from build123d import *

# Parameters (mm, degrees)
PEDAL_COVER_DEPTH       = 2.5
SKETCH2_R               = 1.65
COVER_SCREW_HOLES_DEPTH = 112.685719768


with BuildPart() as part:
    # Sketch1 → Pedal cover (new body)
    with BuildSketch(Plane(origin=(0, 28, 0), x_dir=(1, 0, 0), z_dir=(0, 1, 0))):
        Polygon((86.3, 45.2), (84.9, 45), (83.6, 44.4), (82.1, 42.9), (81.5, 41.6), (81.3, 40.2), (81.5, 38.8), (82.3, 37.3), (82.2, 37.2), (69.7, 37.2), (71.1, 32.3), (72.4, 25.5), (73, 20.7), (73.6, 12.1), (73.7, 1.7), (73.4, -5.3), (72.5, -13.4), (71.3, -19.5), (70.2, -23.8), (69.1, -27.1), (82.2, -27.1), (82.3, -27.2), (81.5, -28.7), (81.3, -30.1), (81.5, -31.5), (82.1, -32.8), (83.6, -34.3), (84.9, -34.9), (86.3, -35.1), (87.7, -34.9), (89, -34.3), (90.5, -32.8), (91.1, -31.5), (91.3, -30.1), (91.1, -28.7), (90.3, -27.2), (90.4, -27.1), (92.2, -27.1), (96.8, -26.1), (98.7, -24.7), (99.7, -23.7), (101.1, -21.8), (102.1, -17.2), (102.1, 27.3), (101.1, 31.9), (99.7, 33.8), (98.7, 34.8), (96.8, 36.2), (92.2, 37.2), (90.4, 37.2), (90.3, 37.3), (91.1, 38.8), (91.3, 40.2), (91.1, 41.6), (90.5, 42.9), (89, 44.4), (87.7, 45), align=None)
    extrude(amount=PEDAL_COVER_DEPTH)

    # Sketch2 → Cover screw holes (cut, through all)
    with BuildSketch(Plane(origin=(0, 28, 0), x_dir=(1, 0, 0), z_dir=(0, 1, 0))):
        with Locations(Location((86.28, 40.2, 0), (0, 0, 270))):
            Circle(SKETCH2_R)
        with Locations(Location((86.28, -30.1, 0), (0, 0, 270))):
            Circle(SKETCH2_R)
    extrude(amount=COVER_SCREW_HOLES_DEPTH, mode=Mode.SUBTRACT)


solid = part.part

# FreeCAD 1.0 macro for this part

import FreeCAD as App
import Part
import Sketcher

V = App.Vector
Q = App.Units.Quantity


def add_polygon(sketch, points):
    """Adds a closed chain of lines whose ends are joined by coincident constraints."""
    first, n = sketch.GeometryCount, len(points)
    for a, b in zip(points, points[1:] + points[:1]):
        sketch.addGeometry(Part.LineSegment(App.Vector(*a, 0), App.Vector(*b, 0)), False)
    for i in range(n):
        sketch.addConstraint(Sketcher.Constraint("Coincident", first + i, 2, first + (i + 1) % n, 1))

doc = App.newDocument("Part")
body = doc.addObject("PartDesign::Body", "Body")

# Sketch on XZ plane
sketch1 = doc.addObject("Sketcher::SketchObject", "Sketch")
body.addObject(sketch1)
sketch1.AttachmentSupport = (doc.XZ_Plane, [""])
sketch1.MapMode = "FlatFace"
sketch1.AttachmentOffset = App.Placement(V(0, 0, -28), App.Rotation())
add_polygon(sketch1, [(86.3, -45.2), (84.9, -45), (83.6, -44.4), (82.1, -42.9), (81.5, -41.6), (81.3, -40.2), (81.5, -38.8), (82.3, -37.3), (82.2, -37.2), (69.7, -37.2), (71.1, -32.3), (72.4, -25.5), (73, -20.7), (73.6, -12.1), (73.7, -1.7), (73.4, 5.3), (72.5, 13.4), (71.3, 19.5), (70.2, 23.8), (69.1, 27.1), (82.2, 27.1), (82.3, 27.2), (81.5, 28.7), (81.3, 30.1), (81.5, 31.5), (82.1, 32.8), (83.6, 34.3), (84.9, 34.9), (86.3, 35.1), (87.7, 34.9), (89, 34.3), (90.5, 32.8), (91.1, 31.5), (91.3, 30.1), (91.1, 28.7), (90.3, 27.2), (90.4, 27.1), (92.2, 27.1), (96.8, 26.1), (98.7, 24.7), (99.7, 23.7), (101.1, 21.8), (102.1, 17.2), (102.1, -27.3), (101.1, -31.9), (99.7, -33.8), (98.7, -34.8), (96.8, -36.2), (92.2, -37.2), (90.4, -37.2), (90.3, -37.3), (91.1, -38.8), (91.3, -40.2), (91.1, -41.6), (90.5, -42.9), (89, -44.4), (87.7, -45)])  # lines 0-56
sketch1.addConstraint(Sketcher.Constraint("Horizontal", 8))
sketch1.addConstraint(Sketcher.Constraint("Horizontal", 19))
sketch1.addConstraint(Sketcher.Constraint("Horizontal", 36))
sketch1.addConstraint(Sketcher.Constraint("Vertical", 42))
sketch1.addConstraint(Sketcher.Constraint("Horizontal", 48))
sketch1.addConstraint(Sketcher.Constraint("Perpendicular", 0, 5))
sketch1.addConstraint(Sketcher.Constraint("Parallel", 2, 7))
sketch1.addConstraint(Sketcher.Constraint("Perpendicular", 7, 20))
sketch1.addConstraint(Sketcher.Constraint("Parallel", 4, 22))
sketch1.addConstraint(Sketcher.Constraint("Parallel", 5, 23))
sketch1.addConstraint(Sketcher.Constraint("Perpendicular", 1, 24))
sketch1.addConstraint(Sketcher.Constraint("Parallel", 20, 25))
sketch1.addConstraint(Sketcher.Constraint("Perpendicular", 3, 26))
sketch1.addConstraint(Sketcher.Constraint("Perpendicular", 22, 27))
sketch1.addConstraint(Sketcher.Constraint("Perpendicular", 23, 28))
sketch1.addConstraint(Sketcher.Constraint("Perpendicular", 24, 29))
sketch1.addConstraint(Sketcher.Constraint("Perpendicular", 25, 30))
sketch1.addConstraint(Sketcher.Constraint("Perpendicular", 26, 31))
sketch1.addConstraint(Sketcher.Constraint("Perpendicular", 27, 32))
sketch1.addConstraint(Sketcher.Constraint("Perpendicular", 28, 33))
sketch1.addConstraint(Sketcher.Constraint("Parallel", 6, 34))
sketch1.addConstraint(Sketcher.Constraint("Parallel", 30, 35))
sketch1.addConstraint(Sketcher.Constraint("Parallel", 35, 39))
sketch1.addConstraint(Sketcher.Constraint("Perpendicular", 37, 43))
sketch1.addConstraint(Sketcher.Constraint("Perpendicular", 38, 44))
sketch1.addConstraint(Sketcher.Constraint("Perpendicular", 39, 45))
sketch1.addConstraint(Sketcher.Constraint("Perpendicular", 40, 46))
sketch1.addConstraint(Sketcher.Constraint("Perpendicular", 41, 47))
sketch1.addConstraint(Sketcher.Constraint("Parallel", 45, 49))
sketch1.addConstraint(Sketcher.Constraint("Parallel", 21, 50))
sketch1.addConstraint(Sketcher.Constraint("Parallel", 32, 51))
sketch1.addConstraint(Sketcher.Constraint("Parallel", 33, 52))
sketch1.addConstraint(Sketcher.Constraint("Perpendicular", 29, 53))
sketch1.addConstraint(Sketcher.Constraint("Parallel", 49, 54))
sketch1.addConstraint(Sketcher.Constraint("Perpendicular", 31, 55))
sketch1.addConstraint(Sketcher.Constraint("Perpendicular", 51, 56))
sketch1.addConstraint(Sketcher.Constraint("Horizontal", 26, 2, 28, 2))
sketch1.addConstraint(Sketcher.Constraint("Horizontal", 25, 2, 29, 2))
sketch1.addConstraint(Sketcher.Constraint("Horizontal", 24, 2, 30, 2))
sketch1.addConstraint(Sketcher.Constraint("Horizontal", 23, 2, 31, 2))
sketch1.addConstraint(Sketcher.Constraint("Horizontal", 22, 2, 32, 2))
sketch1.addConstraint(Sketcher.Constraint("Horizontal", 21, 2, 33, 2))
sketch1.addConstraint(Sketcher.Constraint("Horizontal", 20, 2, 34, 2))
sketch1.addConstraint(Sketcher.Constraint("Horizontal", 19, 2, 35, 2))
sketch1.addConstraint(Sketcher.Constraint("Horizontal", 8, 2, 47, 2))
sketch1.addConstraint(Sketcher.Constraint("Horizontal", 6, 2, 49, 2))
sketch1.addConstraint(Sketcher.Constraint("Horizontal", 5, 2, 50, 2))
sketch1.addConstraint(Sketcher.Constraint("Horizontal", 4, 2, 51, 2))
sketch1.addConstraint(Sketcher.Constraint("Horizontal", 3, 2, 52, 2))
sketch1.addConstraint(Sketcher.Constraint("Horizontal", 2, 2, 53, 2))
sketch1.addConstraint(Sketcher.Constraint("Horizontal", 1, 2, 54, 2))
sketch1.addConstraint(Sketcher.Constraint("Horizontal", 0, 2, 55, 2))
sketch1.addConstraint(Sketcher.Constraint("Vertical", 3, 2, 5, 2))
sketch1.addConstraint(Sketcher.Constraint("Vertical", 7, 2, 19, 2))
sketch1.addConstraint(Sketcher.Constraint("Vertical", 6, 2, 20, 2))
sketch1.addConstraint(Sketcher.Constraint("Vertical", 5, 2, 21, 2))
sketch1.addConstraint(Sketcher.Constraint("Vertical", 4, 2, 22, 2))
sketch1.addConstraint(Sketcher.Constraint("Vertical", 21, 2, 23, 2))
sketch1.addConstraint(Sketcher.Constraint("Vertical", 2, 2, 24, 2))
sketch1.addConstraint(Sketcher.Constraint("Vertical", 1, 2, 25, 2))
sketch1.addConstraint(Sketcher.Constraint("Vertical", 0, 2, 26, 2))
sketch1.addConstraint(Sketcher.Constraint("Vertical", 31, 2, 33, 2))
sketch1.addConstraint(Sketcher.Constraint("Vertical", 40, 2, 43, 2))
sketch1.addConstraint(Sketcher.Constraint("Vertical", 39, 2, 44, 2))
sketch1.addConstraint(Sketcher.Constraint("Vertical", 38, 2, 45, 2))
sketch1.addConstraint(Sketcher.Constraint("Vertical", 37, 2, 46, 2))
sketch1.addConstraint(Sketcher.Constraint("Vertical", 36, 2, 47, 2))
sketch1.addConstraint(Sketcher.Constraint("Vertical", 35, 2, 48, 2))
sketch1.addConstraint(Sketcher.Constraint("Vertical", 34, 2, 49, 2))
sketch1.addConstraint(Sketcher.Constraint("Vertical", 33, 2, 50, 2))
sketch1.addConstraint(Sketcher.Constraint("Vertical", 30, 2, 53, 2))
sketch1.addConstraint(Sketcher.Constraint("Equal", 1, 3))
sketch1.addConstraint(Sketcher.Constraint("Equal", 0, 4))
sketch1.addConstraint(Sketcher.Constraint("Equal", 33, 39))
sketch1.addConstraint(Sketcher.Constraint("Equal", 38, 40))
sketch1.addConstraint(Sketcher.Constraint("Equal", 37, 41))
sketch1.addConstraint(Sketcher.Constraint("Equal", 41, 43))
sketch1.addConstraint(Sketcher.Constraint("Equal", 40, 44))
sketch1.addConstraint(Sketcher.Constraint("DistanceX", 8, 2, 8, 1, Q("12.5 mm")))
sketch1.addConstraint(Sketcher.Constraint("DistanceX", 19, 1, 19, 2, Q("13.1 mm")))
sketch1.addConstraint(Sketcher.Constraint("DistanceX", 36, 1, 36, 2, Q("1.8 mm")))
sketch1.addConstraint(Sketcher.Constraint("DistanceY", 42, 2, 42, 1, Q("44.5 mm")))
sketch1.addConstraint(Sketcher.Constraint("DistanceY", 0, 2, -1, 1, Q("45 mm")))
sketch1.addConstraint(Sketcher.Constraint("DistanceX", -1, 1, 11, 2, Q("73 mm")))
sketch1.addConstraint(Sketcher.Constraint("DistanceX", -1, 1, 29, 2, Q("89 mm")))
sketch1.addConstraint(Sketcher.Constraint("DistanceX", 4, 2, 6, 2, Q("1 mm")))
sketch1.addConstraint(Sketcher.Constraint("DistanceY", 4, 2, 7, 2, Q("3 mm")))
sketch1.addConstraint(Sketcher.Constraint("DistanceY", 6, 2, 9, 2, Q("5 mm")))
sketch1.addConstraint(Sketcher.Constraint("DistanceY", 11, 2, 13, 2, Q("19 mm")))
sketch1.addConstraint(Sketcher.Constraint("DistanceX", 8, 2, 13, 2, Q("4 mm")))
sketch1.addConstraint(Sketcher.Constraint("DistanceY", 13, 2, 14, 2, Q("7 mm")))
sketch1.addConstraint(Sketcher.Constraint("DistanceX", 10, 2, 14, 2, Q("1 mm")))
sketch1.addConstraint(Sketcher.Constraint("DistanceX", 17, 2, 19, 2, Q("12 mm")))
sketch1.addConstraint(Sketcher.Constraint("DistanceX", 16, 2, 20, 2, Q("11 mm")))
sketch1.addConstraint(Sketcher.Constraint("DistanceX", 22, 2, 27, 2, Q("5 mm")))
sketch1.addConstraint(Sketcher.Constraint("DistanceY", 37, 2, 36, 2, Q("1 mm")))
sketch1.addConstraint(Sketcher.Constraint("DistanceY", 38, 2, 33, 2, Q("4 mm")))
sketch1.addConstraint(Sketcher.Constraint("DistanceX", 38, 2, 39, 2, Q("1 mm")))
sketch1.addConstraint(Sketcher.Constraint("DistanceY", 6, 2, 42, 2, Q("10 mm")))
sketch1.addConstraint(Sketcher.Constraint("DistanceX", 7, 2, 47, 2, Q("10 mm")))
sketch1.addConstraint(Sketcher.Constraint("Distance", 6, Q("1.7 mm")))
sketch1.addConstraint(Sketcher.Constraint("DistanceX", -1, 1, 0, 2, Q("84.9 mm")))
sketch1.addConstraint(Sketcher.Constraint("DistanceY", 1, 2, -1, 1, Q("44.4 mm")))
sketch1.addConstraint(Sketcher.Constraint("DistanceX", -1, 1, 9, 2, Q("71.1 mm")))
sketch1.addConstraint(Sketcher.Constraint("DistanceX", -1, 1, 10, 2, Q("72.4 mm")))
sketch1.addConstraint(Sketcher.Constraint("DistanceY", 10, 2, -1, 1, Q("25.5 mm")))
sketch1.addConstraint(Sketcher.Constraint("DistanceY", 11, 2, -1, 1, Q("20.7 mm")))
sketch1.addConstraint(Sketcher.Constraint("DistanceX", -1, 1, 12, 2, Q("73.6 mm")))
sketch1.addConstraint(Sketcher.Constraint("DistanceY", 12, 2, -1, 1, Q("12.1 mm")))
sketch1.addConstraint(Sketcher.Constraint("DistanceX", -1, 1, 15, 2, Q("72.5 mm")))
sketch1.addConstraint(Sketcher.Constraint("DistanceY", -1, 1, 15, 2, Q("13.4 mm")))
sketch1.addConstraint(Sketcher.Constraint("DistanceY", -1, 1, 16, 2, Q("19.5 mm")))
sketch1.addConstraint(Sketcher.Constraint("DistanceY", -1, 1, 17, 2, Q("23.8 mm")))
sketch1.addConstraint(Sketcher.Constraint("DistanceX", -1, 1, 37, 2, Q("96.8 mm")))
pad1 = doc.addObject("PartDesign::Pad", "Pad")
body.addObject(pad1)
pad1.Profile = sketch1
pad1.Length = 2.5
pad1.Reversed = True

# Sketch on XZ plane
sketch2 = doc.addObject("Sketcher::SketchObject", "Sketch001")
body.addObject(sketch2)
sketch2.AttachmentSupport = (doc.XZ_Plane, [""])
sketch2.MapMode = "FlatFace"
sketch2.AttachmentOffset = App.Placement(V(0, 0, -28), App.Rotation())
sketch2.addGeometry(Part.Circle(V(86.3, -40.2, 0), V(0, 0, 1), 1.6), False)
sketch2.addGeometry(Part.Circle(V(86.3, 30.1, 0), V(0, 0, 1), 1.6), False)
sketch2.addConstraint(Sketcher.Constraint("Equal", 0, 1))
sketch2.addConstraint(Sketcher.Constraint("Vertical", 0, 3, 1, 3))
sketch2.addConstraint(Sketcher.Constraint("Diameter", 0, Q("3.3 mm")))
sketch2.addConstraint(Sketcher.Constraint("DistanceY", 0, 3, -1, 1, Q("40.2 mm")))
sketch2.addConstraint(Sketcher.Constraint("DistanceY", -1, 1, 1, 3, Q("30.1 mm")))
sketch2.addConstraint(Sketcher.Constraint("DistanceX", -1, 1, 0, 3, Q("86.28 mm")))
pocket1 = doc.addObject("PartDesign::Pocket", "Pocket")
body.addObject(pocket1)
pocket1.Profile = sketch2
pocket1.Type = "ThroughAll"

doc.recompute()
